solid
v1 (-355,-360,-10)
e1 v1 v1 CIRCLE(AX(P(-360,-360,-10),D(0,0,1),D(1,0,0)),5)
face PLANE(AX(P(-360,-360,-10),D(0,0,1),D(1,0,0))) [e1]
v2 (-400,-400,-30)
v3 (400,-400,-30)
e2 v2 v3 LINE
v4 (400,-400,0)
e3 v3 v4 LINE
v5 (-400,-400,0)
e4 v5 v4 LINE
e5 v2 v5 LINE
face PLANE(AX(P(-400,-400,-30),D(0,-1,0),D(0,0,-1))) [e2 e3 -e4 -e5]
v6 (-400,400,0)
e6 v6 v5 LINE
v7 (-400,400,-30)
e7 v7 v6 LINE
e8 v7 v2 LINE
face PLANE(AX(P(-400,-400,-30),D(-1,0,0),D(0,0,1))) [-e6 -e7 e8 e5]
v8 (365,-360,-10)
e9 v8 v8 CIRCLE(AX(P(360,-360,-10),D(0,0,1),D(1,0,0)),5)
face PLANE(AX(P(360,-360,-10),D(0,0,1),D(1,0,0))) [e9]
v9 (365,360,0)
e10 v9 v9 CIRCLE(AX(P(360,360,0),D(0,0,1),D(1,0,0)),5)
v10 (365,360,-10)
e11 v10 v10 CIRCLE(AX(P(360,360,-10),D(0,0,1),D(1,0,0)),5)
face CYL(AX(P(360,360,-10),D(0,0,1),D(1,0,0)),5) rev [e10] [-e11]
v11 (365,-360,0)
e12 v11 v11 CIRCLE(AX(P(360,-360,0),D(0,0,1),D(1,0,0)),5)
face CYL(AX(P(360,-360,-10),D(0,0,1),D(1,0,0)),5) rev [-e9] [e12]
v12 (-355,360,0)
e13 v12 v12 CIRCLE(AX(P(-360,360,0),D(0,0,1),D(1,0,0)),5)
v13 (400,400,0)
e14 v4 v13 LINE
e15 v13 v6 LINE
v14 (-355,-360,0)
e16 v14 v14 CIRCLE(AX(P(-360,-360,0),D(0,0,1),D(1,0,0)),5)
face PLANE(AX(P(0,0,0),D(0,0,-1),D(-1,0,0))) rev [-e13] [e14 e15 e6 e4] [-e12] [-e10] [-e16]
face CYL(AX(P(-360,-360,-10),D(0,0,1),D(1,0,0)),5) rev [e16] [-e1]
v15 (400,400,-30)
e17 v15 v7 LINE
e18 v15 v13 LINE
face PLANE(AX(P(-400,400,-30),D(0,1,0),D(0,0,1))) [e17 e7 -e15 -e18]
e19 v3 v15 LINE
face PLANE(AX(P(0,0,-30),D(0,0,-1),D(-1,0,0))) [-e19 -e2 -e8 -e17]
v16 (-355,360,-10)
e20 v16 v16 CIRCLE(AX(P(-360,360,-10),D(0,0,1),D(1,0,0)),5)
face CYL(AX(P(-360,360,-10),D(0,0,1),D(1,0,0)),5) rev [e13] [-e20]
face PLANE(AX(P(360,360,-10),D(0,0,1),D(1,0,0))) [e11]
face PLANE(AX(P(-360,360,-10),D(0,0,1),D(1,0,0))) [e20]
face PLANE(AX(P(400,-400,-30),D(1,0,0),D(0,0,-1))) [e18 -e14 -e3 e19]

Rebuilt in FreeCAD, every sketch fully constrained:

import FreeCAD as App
import Part
import Sketcher
from FreeCAD import Vector

doc = App.newDocument("Part")
body = doc.addObject("PartDesign::Body", "Body")

sketch1 = body.newObject("Sketcher::SketchObject", "Sketch")
sketch1.AttachmentSupport = (doc.getObject("XY_Plane"), [""])
sketch1.MapMode = "FlatFace"
sketch1.addGeometry([
    Part.LineSegment(Vector(-400, 400, 0), Vector(-400, -400, 0)),
    Part.LineSegment(Vector(-400, -400, 0), Vector(400, -400, 0)),
    Part.LineSegment(Vector(400, -400, 0), Vector(400, 400, 0)),
    Part.LineSegment(Vector(400, 400, 0), Vector(-400, 400, 0)),
], False)
sketch1.addConstraint([
    Sketcher.Constraint("Coincident", 0, 2, 1, 1),
    Sketcher.Constraint("Coincident", 1, 2, 2, 1),
    Sketcher.Constraint("Coincident", 2, 2, 3, 1),
    Sketcher.Constraint("Coincident", 3, 2, 0, 1),
    Sketcher.Constraint("Vertical", 0),
    Sketcher.Constraint("Horizontal", 1),
    Sketcher.Constraint("Vertical", 2),
    Sketcher.Constraint("Horizontal", 3),
    Sketcher.Constraint("Symmetric", 0, 2, 2, 2, -1, 1),
    Sketcher.Constraint("Equal", 3, 0),
    Sketcher.Constraint("DistanceX", 1, 1, 1, 2, 800.0),
])
pad1 = body.newObject("PartDesign::Pad", "Pad")
pad1.Profile = sketch1
pad1.Length = 30
pad1.Reversed = True

sketch2 = body.newObject("Sketcher::SketchObject", "Sketch001")
sketch2.AttachmentSupport = (doc.getObject("XY_Plane"), [""])
sketch2.MapMode = "FlatFace"
sketch2.addGeometry(Part.Circle(Vector(360, 360, 0), Vector(0, 0, 1), 5), False)
sketch2.addConstraint([
    Sketcher.Constraint("Diameter", 0, 10.0),
    Sketcher.Constraint("DistanceX", -1, 1, 0, 3, 360.0),
    Sketcher.Constraint("DistanceY", -1, 1, 0, 3, 360.0),
])
pocket1 = body.newObject("PartDesign::Pocket", "Pocket")
pocket1.Profile = sketch2
pocket1.Length = 10

sketch3 = body.newObject("Sketcher::SketchObject", "Sketch002")
sketch3.AttachmentSupport = (doc.getObject("XY_Plane"), [""])
sketch3.MapMode = "FlatFace"
sketch3.addGeometry(Part.Circle(Vector(-360, 360, 0), Vector(0, 0, 1), 5), False)
sketch3.addConstraint([
    Sketcher.Constraint("Diameter", 0, 10.0),
    Sketcher.Constraint("DistanceX", 0, 3, -1, 1, 360.0),
    Sketcher.Constraint("DistanceY", -1, 1, 0, 3, 360.0),
])
pocket2 = body.newObject("PartDesign::Pocket", "Pocket001")
pocket2.Profile = sketch3
pocket2.Length = 10

sketch4 = body.newObject("Sketcher::SketchObject", "Sketch003")
sketch4.AttachmentSupport = (doc.getObject("XY_Plane"), [""])
sketch4.MapMode = "FlatFace"
sketch4.addGeometry(Part.Circle(Vector(-360, -360, 0), Vector(0, 0, 1), 5), False)
sketch4.addConstraint([
    Sketcher.Constraint("Diameter", 0, 10.0),
    Sketcher.Constraint("DistanceX", 0, 3, -1, 1, 360.0),
    Sketcher.Constraint("DistanceY", 0, 3, -1, 1, 360.0),
])
pocket3 = body.newObject("PartDesign::Pocket", "Pocket002")
pocket3.Profile = sketch4
pocket3.Length = 10

sketch5 = body.newObject("Sketcher::SketchObject", "Sketch004")
sketch5.AttachmentSupport = (doc.getObject("XY_Plane"), [""])
sketch5.MapMode = "FlatFace"
sketch5.addGeometry(Part.Circle(Vector(360, -360, 0), Vector(0, 0, 1), 5), False)
sketch5.addConstraint([
    Sketcher.Constraint("Diameter", 0, 10.0),
    Sketcher.Constraint("DistanceX", -1, 1, 0, 3, 360.0),
    Sketcher.Constraint("DistanceY", 0, 3, -1, 1, 360.0),
])
pocket4 = body.newObject("PartDesign::Pocket", "Pocket003")
pocket4.Profile = sketch5
pocket4.Length = 10

doc.recompute()
